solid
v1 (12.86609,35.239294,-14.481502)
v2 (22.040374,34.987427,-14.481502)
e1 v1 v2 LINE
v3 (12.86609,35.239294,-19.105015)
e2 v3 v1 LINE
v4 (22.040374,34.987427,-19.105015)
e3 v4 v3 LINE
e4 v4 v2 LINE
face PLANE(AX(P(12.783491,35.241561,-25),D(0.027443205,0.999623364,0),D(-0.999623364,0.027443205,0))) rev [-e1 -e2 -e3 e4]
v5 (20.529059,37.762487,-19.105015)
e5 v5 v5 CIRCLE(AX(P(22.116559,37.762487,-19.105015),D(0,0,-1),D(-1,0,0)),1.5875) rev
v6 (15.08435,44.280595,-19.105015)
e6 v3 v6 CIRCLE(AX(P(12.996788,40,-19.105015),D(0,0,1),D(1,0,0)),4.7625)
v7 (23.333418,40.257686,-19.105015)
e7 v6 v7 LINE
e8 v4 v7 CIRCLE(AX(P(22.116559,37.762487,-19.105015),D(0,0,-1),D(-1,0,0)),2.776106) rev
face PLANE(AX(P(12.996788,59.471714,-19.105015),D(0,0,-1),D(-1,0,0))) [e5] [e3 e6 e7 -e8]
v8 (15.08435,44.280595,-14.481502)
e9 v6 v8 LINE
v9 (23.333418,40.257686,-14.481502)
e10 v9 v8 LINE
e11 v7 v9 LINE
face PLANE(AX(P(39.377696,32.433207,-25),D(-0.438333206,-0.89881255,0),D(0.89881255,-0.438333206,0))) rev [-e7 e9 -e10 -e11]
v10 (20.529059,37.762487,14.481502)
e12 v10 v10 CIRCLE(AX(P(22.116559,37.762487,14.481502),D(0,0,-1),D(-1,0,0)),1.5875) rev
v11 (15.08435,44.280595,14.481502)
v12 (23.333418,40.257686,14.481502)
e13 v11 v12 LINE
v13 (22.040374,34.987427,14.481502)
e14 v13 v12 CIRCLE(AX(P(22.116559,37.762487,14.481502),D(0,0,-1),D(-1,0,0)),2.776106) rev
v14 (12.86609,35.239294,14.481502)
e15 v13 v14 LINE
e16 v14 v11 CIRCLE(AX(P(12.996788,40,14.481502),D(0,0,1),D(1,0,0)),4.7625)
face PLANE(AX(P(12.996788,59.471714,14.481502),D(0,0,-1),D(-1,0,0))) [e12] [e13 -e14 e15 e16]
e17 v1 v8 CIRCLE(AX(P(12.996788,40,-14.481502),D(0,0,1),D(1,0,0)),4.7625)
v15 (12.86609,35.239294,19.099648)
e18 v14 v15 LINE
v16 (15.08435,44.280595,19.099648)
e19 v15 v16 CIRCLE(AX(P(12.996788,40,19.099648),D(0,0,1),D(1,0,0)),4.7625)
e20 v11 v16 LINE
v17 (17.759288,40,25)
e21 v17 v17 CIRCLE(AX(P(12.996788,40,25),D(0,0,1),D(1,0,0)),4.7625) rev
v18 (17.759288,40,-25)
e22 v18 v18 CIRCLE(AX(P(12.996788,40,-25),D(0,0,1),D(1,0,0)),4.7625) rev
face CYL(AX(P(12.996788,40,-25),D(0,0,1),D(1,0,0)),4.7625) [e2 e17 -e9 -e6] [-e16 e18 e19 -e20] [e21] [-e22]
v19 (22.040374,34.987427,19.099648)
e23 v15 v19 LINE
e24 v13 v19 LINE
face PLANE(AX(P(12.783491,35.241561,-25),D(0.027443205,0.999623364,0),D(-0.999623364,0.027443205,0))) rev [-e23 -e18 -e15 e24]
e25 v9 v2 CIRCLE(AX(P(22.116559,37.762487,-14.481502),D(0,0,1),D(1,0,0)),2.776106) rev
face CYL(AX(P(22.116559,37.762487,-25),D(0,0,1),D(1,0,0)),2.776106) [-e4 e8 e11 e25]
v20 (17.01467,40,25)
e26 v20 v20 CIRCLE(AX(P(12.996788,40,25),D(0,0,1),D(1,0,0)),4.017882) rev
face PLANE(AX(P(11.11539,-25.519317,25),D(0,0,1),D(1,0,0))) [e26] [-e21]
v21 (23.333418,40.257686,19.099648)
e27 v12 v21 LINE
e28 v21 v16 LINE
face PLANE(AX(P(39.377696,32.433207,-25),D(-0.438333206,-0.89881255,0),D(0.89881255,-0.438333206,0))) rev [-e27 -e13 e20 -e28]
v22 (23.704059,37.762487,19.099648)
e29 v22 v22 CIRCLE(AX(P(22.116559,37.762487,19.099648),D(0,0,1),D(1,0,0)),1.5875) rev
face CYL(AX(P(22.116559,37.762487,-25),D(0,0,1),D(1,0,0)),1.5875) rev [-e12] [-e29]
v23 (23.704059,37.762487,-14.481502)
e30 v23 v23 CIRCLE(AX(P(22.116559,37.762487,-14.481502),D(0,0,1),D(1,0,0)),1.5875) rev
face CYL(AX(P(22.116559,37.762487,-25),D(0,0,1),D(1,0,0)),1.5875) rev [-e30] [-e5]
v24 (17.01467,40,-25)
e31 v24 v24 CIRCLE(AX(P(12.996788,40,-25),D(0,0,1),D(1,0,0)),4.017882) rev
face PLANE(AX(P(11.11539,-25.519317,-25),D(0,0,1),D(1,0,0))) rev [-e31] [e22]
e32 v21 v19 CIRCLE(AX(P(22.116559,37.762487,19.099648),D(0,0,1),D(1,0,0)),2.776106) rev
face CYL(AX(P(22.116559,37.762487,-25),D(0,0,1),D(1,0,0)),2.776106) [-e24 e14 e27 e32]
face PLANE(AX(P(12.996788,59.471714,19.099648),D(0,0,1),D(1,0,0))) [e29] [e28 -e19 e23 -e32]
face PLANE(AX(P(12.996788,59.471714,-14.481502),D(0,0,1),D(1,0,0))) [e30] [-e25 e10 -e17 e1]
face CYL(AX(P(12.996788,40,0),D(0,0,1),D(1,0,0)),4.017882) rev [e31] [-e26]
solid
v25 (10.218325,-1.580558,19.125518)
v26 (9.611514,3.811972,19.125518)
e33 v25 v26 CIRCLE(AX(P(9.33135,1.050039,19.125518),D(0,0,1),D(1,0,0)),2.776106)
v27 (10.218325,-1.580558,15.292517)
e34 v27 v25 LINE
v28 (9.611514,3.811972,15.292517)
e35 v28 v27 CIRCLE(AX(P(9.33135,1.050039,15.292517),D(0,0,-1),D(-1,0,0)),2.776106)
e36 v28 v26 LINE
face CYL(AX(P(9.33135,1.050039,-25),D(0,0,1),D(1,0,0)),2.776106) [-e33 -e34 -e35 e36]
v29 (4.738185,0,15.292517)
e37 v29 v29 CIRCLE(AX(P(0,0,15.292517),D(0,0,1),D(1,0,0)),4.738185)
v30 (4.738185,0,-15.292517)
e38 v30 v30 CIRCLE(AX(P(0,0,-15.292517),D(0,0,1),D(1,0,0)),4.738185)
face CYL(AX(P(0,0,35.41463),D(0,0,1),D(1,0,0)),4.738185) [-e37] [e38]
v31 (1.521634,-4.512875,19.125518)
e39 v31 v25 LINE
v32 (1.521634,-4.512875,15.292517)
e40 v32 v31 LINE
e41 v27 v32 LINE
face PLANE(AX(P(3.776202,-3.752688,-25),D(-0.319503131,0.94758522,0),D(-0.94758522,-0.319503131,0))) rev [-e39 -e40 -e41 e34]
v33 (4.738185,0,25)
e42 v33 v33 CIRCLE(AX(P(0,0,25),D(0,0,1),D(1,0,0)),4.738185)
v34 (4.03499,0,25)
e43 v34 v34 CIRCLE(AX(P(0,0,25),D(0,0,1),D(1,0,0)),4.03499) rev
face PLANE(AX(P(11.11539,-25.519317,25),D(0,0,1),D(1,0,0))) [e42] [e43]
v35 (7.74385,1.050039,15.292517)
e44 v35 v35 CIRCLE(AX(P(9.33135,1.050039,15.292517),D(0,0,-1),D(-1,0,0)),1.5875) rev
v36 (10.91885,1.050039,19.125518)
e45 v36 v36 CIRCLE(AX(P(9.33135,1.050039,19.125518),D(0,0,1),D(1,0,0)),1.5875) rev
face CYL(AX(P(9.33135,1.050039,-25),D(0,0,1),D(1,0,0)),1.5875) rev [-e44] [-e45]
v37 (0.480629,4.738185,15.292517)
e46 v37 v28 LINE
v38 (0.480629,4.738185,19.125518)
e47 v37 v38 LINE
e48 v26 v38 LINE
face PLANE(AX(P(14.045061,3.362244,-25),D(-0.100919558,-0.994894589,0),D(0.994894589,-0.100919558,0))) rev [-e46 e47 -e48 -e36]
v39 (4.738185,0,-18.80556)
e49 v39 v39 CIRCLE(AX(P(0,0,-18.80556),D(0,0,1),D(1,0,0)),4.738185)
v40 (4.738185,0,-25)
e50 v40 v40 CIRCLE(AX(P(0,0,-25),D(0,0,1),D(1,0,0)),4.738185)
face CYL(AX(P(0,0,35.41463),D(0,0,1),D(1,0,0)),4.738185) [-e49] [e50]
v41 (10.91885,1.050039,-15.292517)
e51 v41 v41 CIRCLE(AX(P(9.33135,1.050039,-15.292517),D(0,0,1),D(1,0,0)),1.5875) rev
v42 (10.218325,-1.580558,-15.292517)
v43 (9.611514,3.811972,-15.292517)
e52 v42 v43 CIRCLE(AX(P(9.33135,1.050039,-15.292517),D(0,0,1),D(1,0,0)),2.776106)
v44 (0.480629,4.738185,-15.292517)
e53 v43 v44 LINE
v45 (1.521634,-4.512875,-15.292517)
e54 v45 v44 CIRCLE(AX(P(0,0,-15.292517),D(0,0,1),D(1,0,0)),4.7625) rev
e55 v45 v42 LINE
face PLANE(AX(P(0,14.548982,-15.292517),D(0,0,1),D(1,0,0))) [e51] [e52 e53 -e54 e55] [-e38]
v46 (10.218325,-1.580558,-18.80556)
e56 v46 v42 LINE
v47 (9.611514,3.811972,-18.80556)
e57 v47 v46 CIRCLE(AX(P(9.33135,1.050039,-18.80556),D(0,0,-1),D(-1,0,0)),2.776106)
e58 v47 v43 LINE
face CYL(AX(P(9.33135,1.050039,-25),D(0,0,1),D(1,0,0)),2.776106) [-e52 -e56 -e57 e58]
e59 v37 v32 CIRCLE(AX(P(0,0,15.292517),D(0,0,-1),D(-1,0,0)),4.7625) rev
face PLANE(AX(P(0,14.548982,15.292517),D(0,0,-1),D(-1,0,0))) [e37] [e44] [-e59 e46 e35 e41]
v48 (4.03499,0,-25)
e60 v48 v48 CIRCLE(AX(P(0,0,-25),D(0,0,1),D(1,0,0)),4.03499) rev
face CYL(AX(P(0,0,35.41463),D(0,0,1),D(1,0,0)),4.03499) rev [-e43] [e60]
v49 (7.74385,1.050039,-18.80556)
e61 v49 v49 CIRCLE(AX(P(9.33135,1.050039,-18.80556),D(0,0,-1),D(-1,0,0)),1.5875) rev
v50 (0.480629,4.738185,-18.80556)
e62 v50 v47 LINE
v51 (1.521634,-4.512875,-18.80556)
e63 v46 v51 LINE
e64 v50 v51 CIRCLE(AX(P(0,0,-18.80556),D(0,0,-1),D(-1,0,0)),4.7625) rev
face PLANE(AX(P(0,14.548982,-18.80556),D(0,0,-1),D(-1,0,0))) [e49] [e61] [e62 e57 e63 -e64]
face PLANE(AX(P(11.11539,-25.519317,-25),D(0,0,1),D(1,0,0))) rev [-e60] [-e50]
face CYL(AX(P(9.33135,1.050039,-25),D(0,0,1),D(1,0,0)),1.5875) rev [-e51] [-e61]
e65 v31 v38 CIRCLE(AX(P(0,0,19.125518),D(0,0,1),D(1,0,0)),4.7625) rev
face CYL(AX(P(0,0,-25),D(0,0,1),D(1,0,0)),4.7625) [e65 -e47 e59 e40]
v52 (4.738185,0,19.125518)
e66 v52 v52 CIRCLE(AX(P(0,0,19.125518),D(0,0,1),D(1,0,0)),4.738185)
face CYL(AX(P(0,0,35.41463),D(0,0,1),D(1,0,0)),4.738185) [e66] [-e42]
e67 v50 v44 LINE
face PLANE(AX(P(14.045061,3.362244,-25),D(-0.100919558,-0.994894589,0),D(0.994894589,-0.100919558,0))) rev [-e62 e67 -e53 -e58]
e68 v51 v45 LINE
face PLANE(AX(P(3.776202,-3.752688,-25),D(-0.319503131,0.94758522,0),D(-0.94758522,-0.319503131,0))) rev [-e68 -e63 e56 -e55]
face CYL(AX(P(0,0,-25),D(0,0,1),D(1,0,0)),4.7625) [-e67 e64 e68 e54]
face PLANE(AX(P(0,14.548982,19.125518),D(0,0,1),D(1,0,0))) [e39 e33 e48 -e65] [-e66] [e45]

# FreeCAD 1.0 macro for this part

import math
import FreeCAD as App
import Part
import Sketcher

V = App.Vector
Q = App.Units.Quantity

doc = App.newDocument("Part")
body = doc.addObject("PartDesign::Body", "Body")

# Sketch on XY plane
sketch1 = body.newObject("Sketcher::SketchObject", "Sketch")
sketch1.AttachmentSupport = (doc.getObject("XY_Plane"), [""])
sketch1.MapMode = "FlatFace"
sketch1.addGeometry([
    Part.LineSegment(V(9.6, 3.8, 0), V(0.5, 4.7, 0)),  # 0
    Part.ArcOfCircle(Part.Circle(V(0, 0, 0), V(0, 0, 1), 4.8), math.radians(84), math.radians(289)),  # 1
    Part.LineSegment(V(1.5, -4.5, 0), V(10.2, -1.6, 0)),  # 2
    Part.ArcOfCircle(Part.Circle(V(9.3, 1.1, 0), V(0, 0, 1), 2.8), math.radians(-71), math.radians(84)),  # 3
    Part.Circle(V(9.3, 1.1, 0), V(0, 0, 1), 1.6),  # 4
], False)
sketch1.addConstraint([
    Sketcher.Constraint("Tangent", 0, 2, 1, 1),
    Sketcher.Constraint("Tangent", 1, 2, 2, 1),
    Sketcher.Constraint("Tangent", 2, 2, 3, 1),
    Sketcher.Constraint("Tangent", 3, 2, 0, 1),
    Sketcher.Constraint("Coincident", 1, 3, -1, 1),
    Sketcher.Constraint("Coincident", 4, 3, 3, 3),
    Sketcher.Constraint("Diameter", 4, Q("0.125 in")),
    Sketcher.Constraint("Radius", 1, Q("0.1875 in")),
    Sketcher.Constraint("Radius", 3, 2.776106),
    Sketcher.Constraint("Distance", 0, 9.177741),
    Sketcher.Constraint("DistanceX", -1, 1, 3, 3, 9.33135),
])
pad1 = body.newObject("PartDesign::Pad", "Pad")
pad1.Profile = sketch1
pad1.Type = "TwoLengths"
pad1.Length = 25
pad1.Length2 = 25

# Sketch on YZ plane
sketch2 = body.newObject("Sketcher::SketchObject", "Sketch001")
sketch2.AttachmentSupport = (doc.getObject("YZ_Plane"), [""])
sketch2.MapMode = "FlatFace"
sketch2.addGeometry([
    Part.LineSegment(V(14.5, 15.3, 0), V(4.7, 15.3, 0)),  # 0
    Part.LineSegment(V(4.7, 15.3, 0), V(4.7, -15.3, 0)),  # 1
    Part.LineSegment(V(4.7, -15.3, 0), V(14.5, -15.3, 0)),  # 2
    Part.LineSegment(V(14.5, -15.3, 0), V(14.5, 15.3, 0)),  # 3
    Part.LineSegment(V(14.5, 34.6, 0), V(4.7, 34.6, 0)),  # 4
    Part.LineSegment(V(4.7, 34.6, 0), V(4.7, 19.1, 0)),  # 5
    Part.LineSegment(V(4.7, 19.1, 0), V(14.5, 19.1, 0)),  # 6
    Part.LineSegment(V(14.5, 19.1, 0), V(14.5, 34.6, 0)),  # 7
    Part.LineSegment(V(14.5, -18.8, 0), V(4.7, -18.8, 0)),  # 8
    Part.LineSegment(V(4.7, -18.8, 0), V(4.7, -32.7, 0)),  # 9
    Part.LineSegment(V(4.7, -32.7, 0), V(14.5, -32.7, 0)),  # 10
    Part.LineSegment(V(14.5, -32.7, 0), V(14.5, -18.8, 0)),  # 11
    Part.LineSegment(V(4, 54.6, 0), V(0, 54.6, 0)),  # 12
    Part.LineSegment(V(0, 54.6, 0), V(0, -54.6, 0)),  # 13
    Part.LineSegment(V(0, -54.6, 0), V(4, -54.6, 0)),  # 14
    Part.LineSegment(V(4, -54.6, 0), V(4, 54.6, 0)),  # 15
], False)
sketch2.addConstraint([
    Sketcher.Constraint("Coincident", 0, 2, 1, 1),
    Sketcher.Constraint("Coincident", 1, 2, 2, 1),
    Sketcher.Constraint("Coincident", 2, 2, 3, 1),
    Sketcher.Constraint("Coincident", 3, 2, 0, 1),
    Sketcher.Constraint("Coincident", 4, 2, 5, 1),
    Sketcher.Constraint("Coincident", 5, 2, 6, 1),
    Sketcher.Constraint("Coincident", 6, 2, 7, 1),
    Sketcher.Constraint("Coincident", 7, 2, 4, 1),
    Sketcher.Constraint("Coincident", 8, 2, 9, 1),
    Sketcher.Constraint("Coincident", 9, 2, 10, 1),
    Sketcher.Constraint("Coincident", 10, 2, 11, 1),
    Sketcher.Constraint("Coincident", 11, 2, 8, 1),
    Sketcher.Constraint("Coincident", 12, 2, 13, 1),
    Sketcher.Constraint("Coincident", 13, 2, 14, 1),
    Sketcher.Constraint("Coincident", 14, 2, 15, 1),
    Sketcher.Constraint("Coincident", 15, 2, 12, 1),
    Sketcher.Constraint("Horizontal", 0),
    Sketcher.Constraint("Vertical", 1),
    Sketcher.Constraint("Horizontal", 2),
    Sketcher.Constraint("Vertical", 3),
    Sketcher.Constraint("Horizontal", 4),
    Sketcher.Constraint("Vertical", 5),
    Sketcher.Constraint("Horizontal", 6),
    Sketcher.Constraint("Vertical", 7),
    Sketcher.Constraint("Horizontal", 8),
    Sketcher.Constraint("Vertical", 9),
    Sketcher.Constraint("Horizontal", 10),
    Sketcher.Constraint("Vertical", 11),
    Sketcher.Constraint("Horizontal", 12),
    Sketcher.Constraint("Vertical", 13),
    Sketcher.Constraint("Horizontal", 14),
    Sketcher.Constraint("Vertical", 15),
    Sketcher.Constraint("Symmetric", 12, 2, 13, 2, -1, 1),
    Sketcher.Constraint("Vertical", 1, 2, 4, 2),
    Sketcher.Constraint("Vertical", 3, 2, 6, 2),
    Sketcher.Constraint("Vertical", 5, 2, 8, 2),
    Sketcher.Constraint("Vertical", 7, 2, 10, 2),
    Sketcher.Constraint("DistanceX", 12, 2, 12, 1, 4.03499),
    Sketcher.Constraint("DistanceY", 0, 2, 5, 2, 3.833001),
    Sketcher.Constraint("DistanceX", 0, 2, 0, 1, 9.810797),
    Sketcher.Constraint("DistanceY", 1, 2, 1, 1, 30.585035),
    Sketcher.Constraint("DistanceY", 5, 2, 5, 1, 15.470184),
    Sketcher.Constraint("DistanceY", 9, 2, 9, 1, 13.851964),
    Sketcher.Constraint("DistanceY", 13, 2, 13, 1, 109.140736),
    Sketcher.Constraint("DistanceY", -1, 1, 5, 2, 19.125518),
    Sketcher.Constraint("DistanceY", 8, 2, -1, 1, 18.80556),
    Sketcher.Constraint("DistanceX", -1, 1, 0, 2, 4.738185),
])
groove = body.newObject("PartDesign::Groove", "Groove")
groove.Profile = sketch2
groove.ReferenceAxis = (sketch2, ["V_Axis"])
groove.Angle = 360
body2 = doc.addObject("PartDesign::Body", "Body001")

# Sketch on XY plane
sketch3 = body2.newObject("Sketcher::SketchObject", "Sketch002")
sketch3.AttachmentSupport = (doc.getObject("XY_Plane001"), [""])
sketch3.MapMode = "FlatFace"
sketch3.addGeometry([
    Part.LineSegment(V(23.3, 40.3, 0), V(15.1, 44.3, 0)),  # 0
    Part.ArcOfCircle(Part.Circle(V(13, 40, 0), V(0, 0, 1), 4.8), math.radians(64), math.radians(268)),  # 1
    Part.LineSegment(V(12.9, 35.2, 0), V(22, 35, 0)),  # 2
    Part.ArcOfCircle(Part.Circle(V(22.1, 37.8, 0), V(0, 0, 1), 2.8), math.radians(-92), math.radians(64)),  # 3
    Part.Circle(V(22.1, 37.8, 0), V(0, 0, 1), 1.6),  # 4
], False)
sketch3.addConstraint([
    Sketcher.Constraint("Tangent", 0, 2, 1, 1),
    Sketcher.Constraint("Tangent", 1, 2, 2, 1),
    Sketcher.Constraint("Tangent", 2, 2, 3, 1),
    Sketcher.Constraint("Tangent", 3, 2, 0, 1),
    Sketcher.Constraint("Coincident", 4, 3, 3, 3),
    Sketcher.Constraint("Diameter", 4, Q("0.125 in")),
    Sketcher.Constraint("Radius", 1, Q("0.1875 in")),
    Sketcher.Constraint("Radius", 3, 2.776106),
    Sketcher.Constraint("DistanceY", -1, 1, 1, 3, 40.0),
    Sketcher.Constraint("DistanceX", 1, 2, 1, 3, 0.130698),
    Sketcher.Constraint("DistanceY", 1, 2, 0, 2, 9.041301),
    Sketcher.Constraint("DistanceX", -1, 1, 3, 3, 22.116559),
])
pad2 = body2.newObject("PartDesign::Pad", "Pad001")
pad2.Profile = sketch3
pad2.Type = "TwoLengths"
pad2.Length = 25
pad2.Length2 = 25

# Sketch on YZ plane
sketch4 = body2.newObject("Sketcher::SketchObject", "Sketch003")
sketch4.AttachmentSupport = (doc.getObject("YZ_Plane001"), [""])
sketch4.MapMode = "FlatFace"
sketch4.AttachmentOffset = App.Placement(V(0, 0, 12.996788), App.Rotation())
sketch4.addGeometry([
    Part.LineSegment(V(59.5, 14.5, 0), V(44.8, 14.5, 0)),  # 0
    Part.LineSegment(V(44.8, 14.5, 0), V(44.8, -14.5, 0)),  # 1
    Part.LineSegment(V(44.8, -14.5, 0), V(59.5, -14.5, 0)),  # 2
    Part.LineSegment(V(59.5, -14.5, 0), V(59.5, 14.5, 0)),  # 3
    Part.LineSegment(V(59.5, 30, 0), V(44.8, 30, 0)),  # 4
    Part.LineSegment(V(44.8, 30, 0), V(44.8, 19.1, 0)),  # 5
    Part.LineSegment(V(44.8, 19.1, 0), V(59.5, 19.1, 0)),  # 6
    Part.LineSegment(V(59.5, 19.1, 0), V(59.5, 30, 0)),  # 7
    Part.LineSegment(V(59.5, -19.1, 0), V(44.8, -19.1, 0)),  # 8
    Part.LineSegment(V(44.8, -19.1, 0), V(44.8, -29.3, 0)),  # 9
    Part.LineSegment(V(44.8, -29.3, 0), V(59.5, -29.3, 0)),  # 10
    Part.LineSegment(V(59.5, -29.3, 0), V(59.5, -19.1, 0)),  # 11
    Part.LineSegment(V(44, 27.3, 0), V(40, 27.3, 0)),  # 12
    Part.LineSegment(V(40, 27.3, 0), V(40, -27.3, 0)),  # 13
    Part.LineSegment(V(40, -27.3, 0), V(44, -27.3, 0)),  # 14
    Part.LineSegment(V(44, -27.3, 0), V(44, 27.3, 0)),  # 15
], False)
sketch4.addGeometry(Part.LineSegment(V(40, 30, 0), V(40, -29.3, 0)), True)  # axis
sketch4.addConstraint([
    Sketcher.Constraint("Coincident", 0, 2, 1, 1),
    Sketcher.Constraint("Coincident", 1, 2, 2, 1),
    Sketcher.Constraint("Coincident", 2, 2, 3, 1),
    Sketcher.Constraint("Coincident", 3, 2, 0, 1),
    Sketcher.Constraint("Coincident", 4, 2, 5, 1),
    Sketcher.Constraint("Coincident", 5, 2, 6, 1),
    Sketcher.Constraint("Coincident", 6, 2, 7, 1),
    Sketcher.Constraint("Coincident", 7, 2, 4, 1),
    Sketcher.Constraint("Coincident", 8, 2, 9, 1),
    Sketcher.Constraint("Coincident", 9, 2, 10, 1),
    Sketcher.Constraint("Coincident", 10, 2, 11, 1),
    Sketcher.Constraint("Coincident", 11, 2, 8, 1),
    Sketcher.Constraint("Coincident", 12, 2, 13, 1),
    Sketcher.Constraint("Coincident", 13, 2, 14, 1),
    Sketcher.Constraint("Coincident", 14, 2, 15, 1),
    Sketcher.Constraint("Coincident", 15, 2, 12, 1),
    Sketcher.Constraint("Horizontal", 0),
    Sketcher.Constraint("Vertical", 1),
    Sketcher.Constraint("Horizontal", 2),
    Sketcher.Constraint("Vertical", 3),
    Sketcher.Constraint("Horizontal", 4),
    Sketcher.Constraint("Vertical", 5),
    Sketcher.Constraint("Horizontal", 6),
    Sketcher.Constraint("Vertical", 7),
    Sketcher.Constraint("Horizontal", 8),
    Sketcher.Constraint("Vertical", 9),
    Sketcher.Constraint("Horizontal", 10),
    Sketcher.Constraint("Vertical", 11),
    Sketcher.Constraint("Horizontal", 12),
    Sketcher.Constraint("Vertical", 13),
    Sketcher.Constraint("Horizontal", 14),
    Sketcher.Constraint("Vertical", 15),
    Sketcher.Constraint("Vertical", 16),
    Sketcher.Constraint("Horizontal", 7, 2, 16, 1),
    Sketcher.Constraint("Horizontal", 10, 2, 16, 2),
    Sketcher.Constraint("Vertical", 1, 2, 4, 2),
    Sketcher.Constraint("Vertical", 3, 2, 6, 2),
    Sketcher.Constraint("Vertical", 5, 2, 8, 2),
    Sketcher.Constraint("Vertical", 7, 2, 10, 2),
    Sketcher.Constraint("Vertical", 13, 2, 16, 1),
    Sketcher.Constraint("DistanceX", 12, 2, 4, 2, Q("0.1875 in")),
    Sketcher.Constraint("DistanceY", 5, 2, 5, 1, 10.915618),
    Sketcher.Constraint("DistanceY", 16, 2, 16, 1, 59.364169),
    Sketcher.Constraint("DistanceX", -1, 1, 0, 2, 44.7625),
    Sketcher.Constraint("DistanceY", 9, 2, 1, 2, 14.8674),
    Sketcher.Constraint("DistanceX", 0, 2, 0, 1, 14.709214),
    Sketcher.Constraint("DistanceX", 12, 2, 12, 1, 4.017882),
    Sketcher.Constraint("DistanceY", 1, 2, 1, 1, 28.963005),
    Sketcher.Constraint("DistanceY", 9, 2, 9, 1, 10.243888),
    Sketcher.Constraint("DistanceY", 13, 2, 13, 1, 54.667423),
    Sketcher.Constraint("DistanceY", -1, 1, 5, 2, 19.099648),
    Sketcher.Constraint("DistanceY", -1, 1, 12, 2, 27.333711),
])
groove2 = body2.newObject("PartDesign::Groove", "Groove001")
groove2.Profile = sketch4
groove2.ReferenceAxis = (sketch4, ["Axis0"])
groove2.Angle = 360

doc.recompute()
